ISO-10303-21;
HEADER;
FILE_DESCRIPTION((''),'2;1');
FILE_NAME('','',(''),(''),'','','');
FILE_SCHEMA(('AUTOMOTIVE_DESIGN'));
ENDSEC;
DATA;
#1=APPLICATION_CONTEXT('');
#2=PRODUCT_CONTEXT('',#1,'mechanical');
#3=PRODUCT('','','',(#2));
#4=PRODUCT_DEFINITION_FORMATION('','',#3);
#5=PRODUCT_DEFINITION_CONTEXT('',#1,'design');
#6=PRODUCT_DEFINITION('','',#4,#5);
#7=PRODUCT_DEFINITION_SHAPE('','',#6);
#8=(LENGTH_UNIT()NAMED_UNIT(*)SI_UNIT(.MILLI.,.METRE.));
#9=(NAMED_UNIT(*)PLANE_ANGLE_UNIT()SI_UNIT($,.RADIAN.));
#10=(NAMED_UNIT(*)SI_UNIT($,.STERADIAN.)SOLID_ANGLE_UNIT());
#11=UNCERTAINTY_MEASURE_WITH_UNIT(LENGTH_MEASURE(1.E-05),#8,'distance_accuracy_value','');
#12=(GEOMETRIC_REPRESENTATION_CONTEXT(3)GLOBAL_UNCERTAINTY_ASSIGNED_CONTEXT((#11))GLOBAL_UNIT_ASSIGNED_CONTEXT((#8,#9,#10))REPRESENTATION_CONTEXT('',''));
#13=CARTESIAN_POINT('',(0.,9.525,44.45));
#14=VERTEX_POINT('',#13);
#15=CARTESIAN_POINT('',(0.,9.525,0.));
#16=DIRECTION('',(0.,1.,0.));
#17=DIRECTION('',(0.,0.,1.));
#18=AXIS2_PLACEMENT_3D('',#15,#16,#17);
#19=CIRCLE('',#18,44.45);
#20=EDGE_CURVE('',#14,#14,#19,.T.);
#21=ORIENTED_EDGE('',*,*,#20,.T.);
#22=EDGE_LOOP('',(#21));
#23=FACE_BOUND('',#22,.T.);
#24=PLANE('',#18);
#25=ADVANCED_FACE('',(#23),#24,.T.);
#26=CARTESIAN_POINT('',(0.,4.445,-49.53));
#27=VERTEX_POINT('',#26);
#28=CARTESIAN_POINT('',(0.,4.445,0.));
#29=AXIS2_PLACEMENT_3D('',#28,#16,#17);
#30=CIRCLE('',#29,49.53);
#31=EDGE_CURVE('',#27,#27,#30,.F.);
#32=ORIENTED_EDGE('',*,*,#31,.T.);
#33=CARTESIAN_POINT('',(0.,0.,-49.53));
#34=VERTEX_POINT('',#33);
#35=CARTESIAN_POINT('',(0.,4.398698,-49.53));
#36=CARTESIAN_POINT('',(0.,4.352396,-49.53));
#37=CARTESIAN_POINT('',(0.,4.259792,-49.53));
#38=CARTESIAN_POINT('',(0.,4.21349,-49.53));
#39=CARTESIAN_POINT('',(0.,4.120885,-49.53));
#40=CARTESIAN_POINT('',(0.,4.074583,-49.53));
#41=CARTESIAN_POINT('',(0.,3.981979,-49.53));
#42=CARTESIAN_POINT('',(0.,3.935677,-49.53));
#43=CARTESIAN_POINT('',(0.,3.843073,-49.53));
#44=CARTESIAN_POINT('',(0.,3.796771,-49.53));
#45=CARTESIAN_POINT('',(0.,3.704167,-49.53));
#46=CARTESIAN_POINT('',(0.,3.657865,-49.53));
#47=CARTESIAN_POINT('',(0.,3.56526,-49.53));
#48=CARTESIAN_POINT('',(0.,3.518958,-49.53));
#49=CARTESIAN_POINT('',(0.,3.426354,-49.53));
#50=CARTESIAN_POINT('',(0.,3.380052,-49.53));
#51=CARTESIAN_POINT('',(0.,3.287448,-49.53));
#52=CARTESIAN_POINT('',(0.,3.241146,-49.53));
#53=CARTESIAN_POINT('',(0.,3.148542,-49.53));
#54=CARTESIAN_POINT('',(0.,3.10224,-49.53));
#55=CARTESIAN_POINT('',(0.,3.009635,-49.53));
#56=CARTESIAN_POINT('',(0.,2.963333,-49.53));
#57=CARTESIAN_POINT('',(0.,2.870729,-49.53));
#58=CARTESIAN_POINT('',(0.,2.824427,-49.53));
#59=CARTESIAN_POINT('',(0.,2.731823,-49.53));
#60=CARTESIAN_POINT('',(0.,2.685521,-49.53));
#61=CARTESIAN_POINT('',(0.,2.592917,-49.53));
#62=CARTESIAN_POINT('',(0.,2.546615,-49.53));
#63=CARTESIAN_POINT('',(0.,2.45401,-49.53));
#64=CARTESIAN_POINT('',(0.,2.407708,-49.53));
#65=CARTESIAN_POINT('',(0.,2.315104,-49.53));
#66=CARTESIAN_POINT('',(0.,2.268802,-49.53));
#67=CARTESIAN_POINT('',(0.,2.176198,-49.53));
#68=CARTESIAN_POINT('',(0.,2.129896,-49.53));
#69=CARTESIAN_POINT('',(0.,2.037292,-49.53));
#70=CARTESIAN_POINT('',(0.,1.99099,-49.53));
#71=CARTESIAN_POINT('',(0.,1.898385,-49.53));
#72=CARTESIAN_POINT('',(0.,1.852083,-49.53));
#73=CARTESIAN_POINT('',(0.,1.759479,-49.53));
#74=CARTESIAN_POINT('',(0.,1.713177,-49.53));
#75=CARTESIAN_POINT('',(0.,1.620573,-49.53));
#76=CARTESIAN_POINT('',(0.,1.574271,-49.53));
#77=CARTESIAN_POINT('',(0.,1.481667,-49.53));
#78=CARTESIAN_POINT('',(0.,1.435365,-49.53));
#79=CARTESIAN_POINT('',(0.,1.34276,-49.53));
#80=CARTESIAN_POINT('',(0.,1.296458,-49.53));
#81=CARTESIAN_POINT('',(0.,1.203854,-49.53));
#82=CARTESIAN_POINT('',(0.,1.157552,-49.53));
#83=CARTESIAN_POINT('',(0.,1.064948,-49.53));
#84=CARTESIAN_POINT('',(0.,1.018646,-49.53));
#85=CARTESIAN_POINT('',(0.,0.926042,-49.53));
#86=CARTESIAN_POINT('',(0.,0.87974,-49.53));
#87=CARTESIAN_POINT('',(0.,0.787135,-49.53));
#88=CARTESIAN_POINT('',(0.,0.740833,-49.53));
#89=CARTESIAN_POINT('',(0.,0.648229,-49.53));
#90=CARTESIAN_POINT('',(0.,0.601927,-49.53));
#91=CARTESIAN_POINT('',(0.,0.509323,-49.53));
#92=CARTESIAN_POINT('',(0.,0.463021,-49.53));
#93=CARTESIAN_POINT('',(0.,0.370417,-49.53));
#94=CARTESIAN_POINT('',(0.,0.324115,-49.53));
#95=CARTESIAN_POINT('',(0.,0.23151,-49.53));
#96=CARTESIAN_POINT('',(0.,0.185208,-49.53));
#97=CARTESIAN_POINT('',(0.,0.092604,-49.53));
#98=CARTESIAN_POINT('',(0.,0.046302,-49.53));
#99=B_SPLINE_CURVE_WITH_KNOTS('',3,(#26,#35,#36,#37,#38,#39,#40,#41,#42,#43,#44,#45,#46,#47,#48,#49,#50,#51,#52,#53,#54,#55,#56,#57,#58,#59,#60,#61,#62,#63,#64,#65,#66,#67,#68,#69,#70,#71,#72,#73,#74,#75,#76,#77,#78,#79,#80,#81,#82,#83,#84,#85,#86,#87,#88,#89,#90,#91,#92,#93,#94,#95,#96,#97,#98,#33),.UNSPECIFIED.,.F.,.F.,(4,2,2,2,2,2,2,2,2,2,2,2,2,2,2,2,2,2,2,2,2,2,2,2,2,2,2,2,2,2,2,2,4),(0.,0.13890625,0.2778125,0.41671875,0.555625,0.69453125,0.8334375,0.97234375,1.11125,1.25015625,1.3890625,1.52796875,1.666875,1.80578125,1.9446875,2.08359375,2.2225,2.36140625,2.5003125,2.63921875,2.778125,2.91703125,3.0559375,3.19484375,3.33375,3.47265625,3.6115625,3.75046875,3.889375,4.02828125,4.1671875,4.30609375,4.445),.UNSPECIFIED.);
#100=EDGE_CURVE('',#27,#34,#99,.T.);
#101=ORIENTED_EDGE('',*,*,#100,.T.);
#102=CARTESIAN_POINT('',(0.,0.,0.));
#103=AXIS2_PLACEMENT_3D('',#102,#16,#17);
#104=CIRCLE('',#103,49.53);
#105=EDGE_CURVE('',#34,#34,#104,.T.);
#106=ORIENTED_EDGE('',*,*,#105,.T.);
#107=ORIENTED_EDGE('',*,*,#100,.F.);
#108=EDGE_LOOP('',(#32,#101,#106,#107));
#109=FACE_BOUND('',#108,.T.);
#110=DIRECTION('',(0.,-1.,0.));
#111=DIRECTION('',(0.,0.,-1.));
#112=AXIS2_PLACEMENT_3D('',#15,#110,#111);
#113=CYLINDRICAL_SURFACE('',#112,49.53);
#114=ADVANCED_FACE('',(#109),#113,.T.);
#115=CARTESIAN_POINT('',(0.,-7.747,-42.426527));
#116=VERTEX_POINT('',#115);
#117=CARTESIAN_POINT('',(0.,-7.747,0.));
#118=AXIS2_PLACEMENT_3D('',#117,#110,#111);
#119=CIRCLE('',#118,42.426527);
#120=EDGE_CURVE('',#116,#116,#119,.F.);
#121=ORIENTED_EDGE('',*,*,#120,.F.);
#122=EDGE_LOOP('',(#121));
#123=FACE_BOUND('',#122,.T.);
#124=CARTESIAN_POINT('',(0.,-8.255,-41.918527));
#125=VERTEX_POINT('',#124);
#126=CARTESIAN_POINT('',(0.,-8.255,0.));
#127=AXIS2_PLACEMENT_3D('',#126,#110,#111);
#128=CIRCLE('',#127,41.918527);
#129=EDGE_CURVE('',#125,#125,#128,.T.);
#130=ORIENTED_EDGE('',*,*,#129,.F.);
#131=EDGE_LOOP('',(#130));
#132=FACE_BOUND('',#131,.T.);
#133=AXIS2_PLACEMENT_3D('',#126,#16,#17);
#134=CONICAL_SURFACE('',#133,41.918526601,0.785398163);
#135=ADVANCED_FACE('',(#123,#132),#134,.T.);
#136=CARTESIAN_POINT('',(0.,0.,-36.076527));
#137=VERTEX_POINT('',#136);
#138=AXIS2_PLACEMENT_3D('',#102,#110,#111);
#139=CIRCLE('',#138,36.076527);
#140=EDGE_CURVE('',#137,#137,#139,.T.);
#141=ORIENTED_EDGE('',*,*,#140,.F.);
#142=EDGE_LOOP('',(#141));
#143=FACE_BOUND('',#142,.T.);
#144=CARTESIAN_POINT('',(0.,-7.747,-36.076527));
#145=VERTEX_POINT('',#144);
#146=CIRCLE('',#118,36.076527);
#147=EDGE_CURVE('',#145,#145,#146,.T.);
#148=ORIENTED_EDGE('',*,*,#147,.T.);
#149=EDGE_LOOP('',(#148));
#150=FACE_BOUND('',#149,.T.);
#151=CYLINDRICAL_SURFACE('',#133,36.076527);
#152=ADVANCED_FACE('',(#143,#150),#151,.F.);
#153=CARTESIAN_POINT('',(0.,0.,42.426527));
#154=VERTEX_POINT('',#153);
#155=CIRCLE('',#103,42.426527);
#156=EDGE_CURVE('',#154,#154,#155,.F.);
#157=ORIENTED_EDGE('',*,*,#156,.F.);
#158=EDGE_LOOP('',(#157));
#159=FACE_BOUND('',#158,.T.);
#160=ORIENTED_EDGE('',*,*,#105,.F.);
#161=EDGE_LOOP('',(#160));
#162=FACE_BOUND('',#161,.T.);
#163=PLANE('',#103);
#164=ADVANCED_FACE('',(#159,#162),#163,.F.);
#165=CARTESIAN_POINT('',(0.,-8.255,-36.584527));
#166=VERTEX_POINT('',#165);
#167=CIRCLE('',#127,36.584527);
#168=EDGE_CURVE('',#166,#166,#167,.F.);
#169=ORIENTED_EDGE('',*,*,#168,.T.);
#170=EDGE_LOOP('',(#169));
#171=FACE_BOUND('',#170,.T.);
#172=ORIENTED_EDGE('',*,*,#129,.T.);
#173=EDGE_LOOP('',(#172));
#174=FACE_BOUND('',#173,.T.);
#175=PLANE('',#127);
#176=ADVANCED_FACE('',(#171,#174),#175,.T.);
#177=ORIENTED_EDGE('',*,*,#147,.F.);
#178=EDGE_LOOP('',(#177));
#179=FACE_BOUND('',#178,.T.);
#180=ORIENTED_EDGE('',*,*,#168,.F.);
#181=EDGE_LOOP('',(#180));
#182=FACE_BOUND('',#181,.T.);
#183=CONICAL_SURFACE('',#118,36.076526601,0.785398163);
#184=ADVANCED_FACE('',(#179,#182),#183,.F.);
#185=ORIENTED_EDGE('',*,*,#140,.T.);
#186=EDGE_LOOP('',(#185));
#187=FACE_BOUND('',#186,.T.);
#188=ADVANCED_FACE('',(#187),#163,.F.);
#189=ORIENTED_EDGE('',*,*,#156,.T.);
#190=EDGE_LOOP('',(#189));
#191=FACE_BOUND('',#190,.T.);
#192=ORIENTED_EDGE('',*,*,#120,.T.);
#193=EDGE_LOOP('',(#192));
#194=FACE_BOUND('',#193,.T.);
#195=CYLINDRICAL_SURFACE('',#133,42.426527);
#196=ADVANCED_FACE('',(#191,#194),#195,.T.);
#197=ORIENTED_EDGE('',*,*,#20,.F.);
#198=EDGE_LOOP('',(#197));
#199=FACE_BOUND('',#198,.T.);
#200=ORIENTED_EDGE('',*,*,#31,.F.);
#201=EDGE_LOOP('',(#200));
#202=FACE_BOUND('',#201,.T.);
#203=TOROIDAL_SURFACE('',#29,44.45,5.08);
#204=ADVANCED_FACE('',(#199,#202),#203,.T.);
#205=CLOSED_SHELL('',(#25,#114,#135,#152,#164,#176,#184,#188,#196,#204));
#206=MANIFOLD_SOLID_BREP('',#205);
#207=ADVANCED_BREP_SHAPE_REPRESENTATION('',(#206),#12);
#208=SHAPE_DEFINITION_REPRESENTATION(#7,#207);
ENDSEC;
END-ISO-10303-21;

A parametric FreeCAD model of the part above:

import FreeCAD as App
import Part
import Sketcher

V = App.Vector
Q = App.Units.Quantity


def edges_at(feature, points):
    """Names of the edges that pass closest to the given points."""
    edges = feature.Shape.Edges
    near = lambda p: min(range(len(edges)), key=lambda i: edges[i].distToShape(Part.Vertex(*p))[0])
    return sorted({f"Edge{near(p) + 1}" for p in points})

doc = App.newDocument("Part")
body = doc.addObject("PartDesign::Body", "Body")

# Sketch on XZ plane
sketch1 = doc.addObject("Sketcher::SketchObject", "Sketch")
body.addObject(sketch1)
sketch1.AttachmentSupport = (doc.XZ_Plane, [""])
sketch1.MapMode = "FlatFace"
sketch1.addGeometry(Part.Circle(V(0, 0, 0), V(0, 0, 1), 50), False)
sketch1.addConstraint(Sketcher.Constraint("Coincident", 0, 3, -1, 1))
sketch1.addConstraint(Sketcher.Constraint("Diameter", 0, Q("3.9 in")))
pad1 = doc.addObject("PartDesign::Pad", "Pad")
body.addObject(pad1)
pad1.Profile = sketch1
pad1.Length = Q("0.375 in")
pad1.Reversed = True

# Sketch on XZ plane
sketch2 = doc.addObject("Sketcher::SketchObject", "Sketch001")
body.addObject(sketch2)
sketch2.AttachmentSupport = (doc.XZ_Plane, [""])
sketch2.MapMode = "FlatFace"
sketch2.addGeometry(Part.Circle(V(0, 0, 0), V(0, 0, 1), 42), False)
sketch2.addGeometry(Part.Circle(V(0, 0, 0), V(0, 0, 1), 36), False)
sketch2.addConstraint(Sketcher.Constraint("Coincident", 0, 3, -1, 1))
sketch2.addConstraint(Sketcher.Constraint("Coincident", 1, 3, -1, 1))
sketch2.addConstraint(Sketcher.Constraint("Diameter", 0, 84.853053))
sketch2.addConstraint(Sketcher.Constraint("Diameter", 1, 72.153053))
pad2 = doc.addObject("PartDesign::Pad", "Pad001")
body.addObject(pad2)
pad2.Profile = sketch2
pad2.Length = Q("0.325 in")
doc.recompute()

fillet = doc.addObject("PartDesign::Fillet", "Fillet")
body.addObject(fillet)
fillet.Base = (pad2, edges_at(pad2, [(0, 9.525, 49.53)]))
fillet.Radius = Q("0.2 in")
doc.recompute()

chamfer = doc.addObject("PartDesign::Chamfer", "Chamfer")
body.addObject(chamfer)
chamfer.Base = (fillet, edges_at(fillet, [(0, -8.255, -42.427), (0, -8.255, 36.077)]))
chamfer.Size = Q("0.02 in")

doc.recompute()
